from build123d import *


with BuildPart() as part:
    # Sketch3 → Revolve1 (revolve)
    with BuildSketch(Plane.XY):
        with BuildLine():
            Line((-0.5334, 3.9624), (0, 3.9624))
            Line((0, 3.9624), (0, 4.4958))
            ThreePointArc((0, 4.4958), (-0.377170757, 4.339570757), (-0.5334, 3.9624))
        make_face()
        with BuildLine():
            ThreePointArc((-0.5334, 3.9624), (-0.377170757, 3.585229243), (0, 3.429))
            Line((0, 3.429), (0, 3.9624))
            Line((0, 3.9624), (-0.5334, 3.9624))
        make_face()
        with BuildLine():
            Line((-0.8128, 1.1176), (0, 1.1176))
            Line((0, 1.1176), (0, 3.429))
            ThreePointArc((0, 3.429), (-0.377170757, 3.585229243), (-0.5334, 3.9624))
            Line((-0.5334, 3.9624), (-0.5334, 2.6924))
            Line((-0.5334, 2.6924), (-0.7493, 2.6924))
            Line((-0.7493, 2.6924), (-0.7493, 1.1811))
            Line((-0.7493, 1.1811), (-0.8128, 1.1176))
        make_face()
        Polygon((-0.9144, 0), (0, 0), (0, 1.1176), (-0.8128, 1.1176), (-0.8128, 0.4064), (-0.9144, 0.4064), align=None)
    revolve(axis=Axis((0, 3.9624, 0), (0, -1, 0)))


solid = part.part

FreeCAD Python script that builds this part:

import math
import FreeCAD as App
import Part
import Sketcher
from FreeCAD import Vector
Q = App.Units.Quantity

doc = App.newDocument("Part")
body = doc.addObject("PartDesign::Body", "Body")

# Sketch on XY plane
sketch1 = body.newObject("Sketcher::SketchObject", "Sketch")
sketch1.AttachmentSupport = (doc.getObject("XY_Plane"), [""])
sketch1.MapMode = "FlatFace"
sketch1.addGeometry([
    Part.ArcOfCircle(Part.Circle(Vector(0, 3.96, 0), Vector(0, 0, 1), 0.53), math.radians(90), math.radians(180)),  # 0
    Part.LineSegment(Vector(-0.53, 3.96, 0), Vector(-0.53, 2.69, 0)),  # 1
    Part.LineSegment(Vector(-0.53, 2.69, 0), Vector(-0.75, 2.69, 0)),  # 2
    Part.LineSegment(Vector(-0.75, 2.69, 0), Vector(-0.75, 1.18, 0)),  # 3
    Part.LineSegment(Vector(-0.75, 1.18, 0), Vector(-0.81, 1.12, 0)),  # 4
    Part.LineSegment(Vector(-0.81, 1.12, 0), Vector(-0.81, 0.41, 0)),  # 5
    Part.LineSegment(Vector(-0.81, 0.41, 0), Vector(-0.91, 0.41, 0)),  # 6
    Part.LineSegment(Vector(-0.91, 0.41, 0), Vector(-0.91, 0, 0)),  # 7
    Part.LineSegment(Vector(-0.91, 0, 0), Vector(0, 0, 0)),  # 8
    Part.LineSegment(Vector(0, 0, 0), Vector(0, 4.5, 0)),  # 9
], False)
sketch1.addConstraint([
    Sketcher.Constraint("Tangent", 0, 2, 1, 1),
    Sketcher.Constraint("Coincident", 1, 2, 2, 1),
    Sketcher.Constraint("Coincident", 2, 2, 3, 1),
    Sketcher.Constraint("Coincident", 3, 2, 4, 1),
    Sketcher.Constraint("Coincident", 4, 2, 5, 1),
    Sketcher.Constraint("Coincident", 5, 2, 6, 1),
    Sketcher.Constraint("Coincident", 6, 2, 7, 1),
    Sketcher.Constraint("Coincident", 7, 2, 8, 1),
    Sketcher.Constraint("Coincident", 8, 2, 9, 1),
    Sketcher.Constraint("Coincident", 9, 2, 0, 1),
    Sketcher.Constraint("Vertical", 1),
    Sketcher.Constraint("Horizontal", 2),
    Sketcher.Constraint("Vertical", 3),
    Sketcher.Constraint("Vertical", 5),
    Sketcher.Constraint("Horizontal", 6),
    Sketcher.Constraint("Vertical", 7),
    Sketcher.Constraint("Horizontal", 8),
    Sketcher.Constraint("Vertical", 9),
    Sketcher.Constraint("Coincident", 8, 2, -1, 1),
    Sketcher.Constraint("PointOnObject", 0, 3, -2),
    Sketcher.Constraint("Angle", 4, Q("-135 deg")),
    Sketcher.Constraint("Radius", 0, Q("0.021 in")),
    Sketcher.Constraint("DistanceY", 1, 2, 1, 1, Q("0.05 in")),
    Sketcher.Constraint("DistanceX", 6, 2, 6, 1, Q("0.004 in")),
    Sketcher.Constraint("DistanceX", 8, 1, 8, 2, Q("0.036 in")),
    Sketcher.Constraint("DistanceY", 5, 2, 5, 1, Q("0.028 in")),
    Sketcher.Constraint("DistanceY", 7, 2, 7, 1, Q("0.016 in")),
    Sketcher.Constraint("DistanceY", 9, 1, 9, 2, Q("0.177 in")),
    Sketcher.Constraint("DistanceX", 2, 2, 2, 1, Q("0.0085 in")),
])
revolution = body.newObject("PartDesign::Revolution", "Revolution")
revolution.Profile = sketch1
revolution.ReferenceAxis = (sketch1, ["V_Axis"])
revolution.Angle = 360

doc.recompute()
